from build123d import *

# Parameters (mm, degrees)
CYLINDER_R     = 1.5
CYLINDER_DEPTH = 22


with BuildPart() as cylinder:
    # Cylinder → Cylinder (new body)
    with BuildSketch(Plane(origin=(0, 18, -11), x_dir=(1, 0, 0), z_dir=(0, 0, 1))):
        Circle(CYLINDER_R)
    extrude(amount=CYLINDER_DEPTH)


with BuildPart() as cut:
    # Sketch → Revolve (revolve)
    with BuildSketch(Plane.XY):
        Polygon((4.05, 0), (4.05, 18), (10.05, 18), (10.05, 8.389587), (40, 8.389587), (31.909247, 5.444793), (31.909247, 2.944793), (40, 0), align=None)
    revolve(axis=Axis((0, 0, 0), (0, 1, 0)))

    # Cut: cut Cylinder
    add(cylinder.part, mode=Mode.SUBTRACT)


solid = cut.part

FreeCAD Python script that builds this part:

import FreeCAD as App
import Part
import Sketcher
from FreeCAD import Vector
Q = App.Units.Quantity


def add_polygon(sketch, points):
    """Adds a closed chain of lines whose ends are joined by coincident constraints."""
    first, n = sketch.GeometryCount, len(points)
    for a, b in zip(points, points[1:] + points[:1]):
        sketch.addGeometry(Part.LineSegment(App.Vector(*a, 0), App.Vector(*b, 0)), False)
    for i in range(n):
        sketch.addConstraint(Sketcher.Constraint("Coincident", first + i, 2, first + (i + 1) % n, 1))

doc = App.newDocument("Part")
params = doc.addObject("Spreadsheet::Sheet", "Params")
for row, (alias, value) in enumerate([
    ("sketch1_diameter", "3 mm"),
    ("pad1_length", "22 mm"),
    ("sketch2_width", "6 mm"),
    ("sketch2_height", "18 mm"),
    ("sketch2_height2", "2.5 mm"),
    ("sketch2_width2", "35.95 mm"),
    ("sketch2_length", "8.609999 mm"),
    ("revolution_angle", "360 deg"),
], start=1):
    params.set(f"A{row}", alias)
    params.set(f"B{row}", "=" + value)
    params.setAlias(f"B{row}", alias)

body = doc.addObject("PartDesign::Body", "Body")

# Sketch on XY plane
sketch1 = body.newObject("Sketcher::SketchObject", "Sketch")
sketch1.AttachmentSupport = (doc.getObject("XY_Plane"), [""])
sketch1.MapMode = "FlatFace"
sketch1.AttachmentOffset = App.Placement(Vector(0, 0, -11), App.Rotation())
sketch1.addGeometry(Part.Circle(Vector(0, 18, 0), Vector(0, 0, 1), 1.5), False)
sketch1.addConstraint([
    Sketcher.Constraint("PointOnObject", 0, 3, -2),
    Sketcher.Constraint("Diameter", 0, Q("3 mm")),
    Sketcher.Constraint("DistanceY", -1, 1, 0, 3, Q("18 mm")),
])
sketch1.setExpression("Constraints[1]", "Params.sketch1_diameter")
pad1 = body.newObject("PartDesign::Pad", "Pad")
pad1.Profile = sketch1
pad1.setExpression("Length", "Params.pad1_length")
body2 = doc.addObject("PartDesign::Body", "Body001")

# Sketch on XY plane
sketch2 = body2.newObject("Sketcher::SketchObject", "Sketch001")
sketch2.AttachmentSupport = (doc.getObject("XY_Plane001"), [""])
sketch2.MapMode = "FlatFace"
add_polygon(sketch2, [(4.05, 18), (4.05, 0), (40, 0), (31.909247, 2.944793), (31.909247, 5.444793), (40, 8.389587), (10.05, 8.389587), (10.05, 18)])  # lines 0-7
sketch2.addConstraint([
    Sketcher.Constraint("Vertical", 0),
    Sketcher.Constraint("Horizontal", 1),
    Sketcher.Constraint("Vertical", 3),
    Sketcher.Constraint("Horizontal", 5),
    Sketcher.Constraint("Vertical", 6),
    Sketcher.Constraint("Horizontal", 7),
    Sketcher.Constraint("PointOnObject", 0, 2, -1),
    Sketcher.Constraint("Vertical", 1, 2, 4, 2),
    Sketcher.Constraint("Equal", 2, 4),
    Sketcher.Constraint("DistanceX", 7, 2, 7, 1, Q("6 mm")),
    Sketcher.Constraint("DistanceY", 0, 2, 0, 1, Q("18 mm")),
    Sketcher.Constraint("Angle", 2, Q("160.000002 deg")),
    Sketcher.Constraint("DistanceY", 3, 1, 3, 2, Q("2.5 mm")),
    Sketcher.Constraint("DistanceX", -1, 1, 1, 2, Q("40 mm")),
    Sketcher.Constraint("DistanceX", 1, 1, 1, 2, Q("35.95 mm")),
    Sketcher.Constraint("Distance", 2, Q("8.609999 mm")),
])
sketch2.setExpression("Constraints[17]", "Params.sketch2_width")
sketch2.setExpression("Constraints[18]", "Params.sketch2_height")
sketch2.setExpression("Constraints[20]", "Params.sketch2_height2")
sketch2.setExpression("Constraints[22]", "Params.sketch2_width2")
sketch2.setExpression("Constraints[23]", "Params.sketch2_length")
revolution = body2.newObject("PartDesign::Revolution", "Revolution")
revolution.Profile = sketch2
revolution.ReferenceAxis = (sketch2, ["V_Axis"])
revolution.setExpression("Angle", "Params.revolution_angle")
doc.recompute()

boolean = body2.newObject("PartDesign::Boolean", "Boolean")
boolean.Type = "Cut"
boolean.addObjects([body])

doc.recompute()
